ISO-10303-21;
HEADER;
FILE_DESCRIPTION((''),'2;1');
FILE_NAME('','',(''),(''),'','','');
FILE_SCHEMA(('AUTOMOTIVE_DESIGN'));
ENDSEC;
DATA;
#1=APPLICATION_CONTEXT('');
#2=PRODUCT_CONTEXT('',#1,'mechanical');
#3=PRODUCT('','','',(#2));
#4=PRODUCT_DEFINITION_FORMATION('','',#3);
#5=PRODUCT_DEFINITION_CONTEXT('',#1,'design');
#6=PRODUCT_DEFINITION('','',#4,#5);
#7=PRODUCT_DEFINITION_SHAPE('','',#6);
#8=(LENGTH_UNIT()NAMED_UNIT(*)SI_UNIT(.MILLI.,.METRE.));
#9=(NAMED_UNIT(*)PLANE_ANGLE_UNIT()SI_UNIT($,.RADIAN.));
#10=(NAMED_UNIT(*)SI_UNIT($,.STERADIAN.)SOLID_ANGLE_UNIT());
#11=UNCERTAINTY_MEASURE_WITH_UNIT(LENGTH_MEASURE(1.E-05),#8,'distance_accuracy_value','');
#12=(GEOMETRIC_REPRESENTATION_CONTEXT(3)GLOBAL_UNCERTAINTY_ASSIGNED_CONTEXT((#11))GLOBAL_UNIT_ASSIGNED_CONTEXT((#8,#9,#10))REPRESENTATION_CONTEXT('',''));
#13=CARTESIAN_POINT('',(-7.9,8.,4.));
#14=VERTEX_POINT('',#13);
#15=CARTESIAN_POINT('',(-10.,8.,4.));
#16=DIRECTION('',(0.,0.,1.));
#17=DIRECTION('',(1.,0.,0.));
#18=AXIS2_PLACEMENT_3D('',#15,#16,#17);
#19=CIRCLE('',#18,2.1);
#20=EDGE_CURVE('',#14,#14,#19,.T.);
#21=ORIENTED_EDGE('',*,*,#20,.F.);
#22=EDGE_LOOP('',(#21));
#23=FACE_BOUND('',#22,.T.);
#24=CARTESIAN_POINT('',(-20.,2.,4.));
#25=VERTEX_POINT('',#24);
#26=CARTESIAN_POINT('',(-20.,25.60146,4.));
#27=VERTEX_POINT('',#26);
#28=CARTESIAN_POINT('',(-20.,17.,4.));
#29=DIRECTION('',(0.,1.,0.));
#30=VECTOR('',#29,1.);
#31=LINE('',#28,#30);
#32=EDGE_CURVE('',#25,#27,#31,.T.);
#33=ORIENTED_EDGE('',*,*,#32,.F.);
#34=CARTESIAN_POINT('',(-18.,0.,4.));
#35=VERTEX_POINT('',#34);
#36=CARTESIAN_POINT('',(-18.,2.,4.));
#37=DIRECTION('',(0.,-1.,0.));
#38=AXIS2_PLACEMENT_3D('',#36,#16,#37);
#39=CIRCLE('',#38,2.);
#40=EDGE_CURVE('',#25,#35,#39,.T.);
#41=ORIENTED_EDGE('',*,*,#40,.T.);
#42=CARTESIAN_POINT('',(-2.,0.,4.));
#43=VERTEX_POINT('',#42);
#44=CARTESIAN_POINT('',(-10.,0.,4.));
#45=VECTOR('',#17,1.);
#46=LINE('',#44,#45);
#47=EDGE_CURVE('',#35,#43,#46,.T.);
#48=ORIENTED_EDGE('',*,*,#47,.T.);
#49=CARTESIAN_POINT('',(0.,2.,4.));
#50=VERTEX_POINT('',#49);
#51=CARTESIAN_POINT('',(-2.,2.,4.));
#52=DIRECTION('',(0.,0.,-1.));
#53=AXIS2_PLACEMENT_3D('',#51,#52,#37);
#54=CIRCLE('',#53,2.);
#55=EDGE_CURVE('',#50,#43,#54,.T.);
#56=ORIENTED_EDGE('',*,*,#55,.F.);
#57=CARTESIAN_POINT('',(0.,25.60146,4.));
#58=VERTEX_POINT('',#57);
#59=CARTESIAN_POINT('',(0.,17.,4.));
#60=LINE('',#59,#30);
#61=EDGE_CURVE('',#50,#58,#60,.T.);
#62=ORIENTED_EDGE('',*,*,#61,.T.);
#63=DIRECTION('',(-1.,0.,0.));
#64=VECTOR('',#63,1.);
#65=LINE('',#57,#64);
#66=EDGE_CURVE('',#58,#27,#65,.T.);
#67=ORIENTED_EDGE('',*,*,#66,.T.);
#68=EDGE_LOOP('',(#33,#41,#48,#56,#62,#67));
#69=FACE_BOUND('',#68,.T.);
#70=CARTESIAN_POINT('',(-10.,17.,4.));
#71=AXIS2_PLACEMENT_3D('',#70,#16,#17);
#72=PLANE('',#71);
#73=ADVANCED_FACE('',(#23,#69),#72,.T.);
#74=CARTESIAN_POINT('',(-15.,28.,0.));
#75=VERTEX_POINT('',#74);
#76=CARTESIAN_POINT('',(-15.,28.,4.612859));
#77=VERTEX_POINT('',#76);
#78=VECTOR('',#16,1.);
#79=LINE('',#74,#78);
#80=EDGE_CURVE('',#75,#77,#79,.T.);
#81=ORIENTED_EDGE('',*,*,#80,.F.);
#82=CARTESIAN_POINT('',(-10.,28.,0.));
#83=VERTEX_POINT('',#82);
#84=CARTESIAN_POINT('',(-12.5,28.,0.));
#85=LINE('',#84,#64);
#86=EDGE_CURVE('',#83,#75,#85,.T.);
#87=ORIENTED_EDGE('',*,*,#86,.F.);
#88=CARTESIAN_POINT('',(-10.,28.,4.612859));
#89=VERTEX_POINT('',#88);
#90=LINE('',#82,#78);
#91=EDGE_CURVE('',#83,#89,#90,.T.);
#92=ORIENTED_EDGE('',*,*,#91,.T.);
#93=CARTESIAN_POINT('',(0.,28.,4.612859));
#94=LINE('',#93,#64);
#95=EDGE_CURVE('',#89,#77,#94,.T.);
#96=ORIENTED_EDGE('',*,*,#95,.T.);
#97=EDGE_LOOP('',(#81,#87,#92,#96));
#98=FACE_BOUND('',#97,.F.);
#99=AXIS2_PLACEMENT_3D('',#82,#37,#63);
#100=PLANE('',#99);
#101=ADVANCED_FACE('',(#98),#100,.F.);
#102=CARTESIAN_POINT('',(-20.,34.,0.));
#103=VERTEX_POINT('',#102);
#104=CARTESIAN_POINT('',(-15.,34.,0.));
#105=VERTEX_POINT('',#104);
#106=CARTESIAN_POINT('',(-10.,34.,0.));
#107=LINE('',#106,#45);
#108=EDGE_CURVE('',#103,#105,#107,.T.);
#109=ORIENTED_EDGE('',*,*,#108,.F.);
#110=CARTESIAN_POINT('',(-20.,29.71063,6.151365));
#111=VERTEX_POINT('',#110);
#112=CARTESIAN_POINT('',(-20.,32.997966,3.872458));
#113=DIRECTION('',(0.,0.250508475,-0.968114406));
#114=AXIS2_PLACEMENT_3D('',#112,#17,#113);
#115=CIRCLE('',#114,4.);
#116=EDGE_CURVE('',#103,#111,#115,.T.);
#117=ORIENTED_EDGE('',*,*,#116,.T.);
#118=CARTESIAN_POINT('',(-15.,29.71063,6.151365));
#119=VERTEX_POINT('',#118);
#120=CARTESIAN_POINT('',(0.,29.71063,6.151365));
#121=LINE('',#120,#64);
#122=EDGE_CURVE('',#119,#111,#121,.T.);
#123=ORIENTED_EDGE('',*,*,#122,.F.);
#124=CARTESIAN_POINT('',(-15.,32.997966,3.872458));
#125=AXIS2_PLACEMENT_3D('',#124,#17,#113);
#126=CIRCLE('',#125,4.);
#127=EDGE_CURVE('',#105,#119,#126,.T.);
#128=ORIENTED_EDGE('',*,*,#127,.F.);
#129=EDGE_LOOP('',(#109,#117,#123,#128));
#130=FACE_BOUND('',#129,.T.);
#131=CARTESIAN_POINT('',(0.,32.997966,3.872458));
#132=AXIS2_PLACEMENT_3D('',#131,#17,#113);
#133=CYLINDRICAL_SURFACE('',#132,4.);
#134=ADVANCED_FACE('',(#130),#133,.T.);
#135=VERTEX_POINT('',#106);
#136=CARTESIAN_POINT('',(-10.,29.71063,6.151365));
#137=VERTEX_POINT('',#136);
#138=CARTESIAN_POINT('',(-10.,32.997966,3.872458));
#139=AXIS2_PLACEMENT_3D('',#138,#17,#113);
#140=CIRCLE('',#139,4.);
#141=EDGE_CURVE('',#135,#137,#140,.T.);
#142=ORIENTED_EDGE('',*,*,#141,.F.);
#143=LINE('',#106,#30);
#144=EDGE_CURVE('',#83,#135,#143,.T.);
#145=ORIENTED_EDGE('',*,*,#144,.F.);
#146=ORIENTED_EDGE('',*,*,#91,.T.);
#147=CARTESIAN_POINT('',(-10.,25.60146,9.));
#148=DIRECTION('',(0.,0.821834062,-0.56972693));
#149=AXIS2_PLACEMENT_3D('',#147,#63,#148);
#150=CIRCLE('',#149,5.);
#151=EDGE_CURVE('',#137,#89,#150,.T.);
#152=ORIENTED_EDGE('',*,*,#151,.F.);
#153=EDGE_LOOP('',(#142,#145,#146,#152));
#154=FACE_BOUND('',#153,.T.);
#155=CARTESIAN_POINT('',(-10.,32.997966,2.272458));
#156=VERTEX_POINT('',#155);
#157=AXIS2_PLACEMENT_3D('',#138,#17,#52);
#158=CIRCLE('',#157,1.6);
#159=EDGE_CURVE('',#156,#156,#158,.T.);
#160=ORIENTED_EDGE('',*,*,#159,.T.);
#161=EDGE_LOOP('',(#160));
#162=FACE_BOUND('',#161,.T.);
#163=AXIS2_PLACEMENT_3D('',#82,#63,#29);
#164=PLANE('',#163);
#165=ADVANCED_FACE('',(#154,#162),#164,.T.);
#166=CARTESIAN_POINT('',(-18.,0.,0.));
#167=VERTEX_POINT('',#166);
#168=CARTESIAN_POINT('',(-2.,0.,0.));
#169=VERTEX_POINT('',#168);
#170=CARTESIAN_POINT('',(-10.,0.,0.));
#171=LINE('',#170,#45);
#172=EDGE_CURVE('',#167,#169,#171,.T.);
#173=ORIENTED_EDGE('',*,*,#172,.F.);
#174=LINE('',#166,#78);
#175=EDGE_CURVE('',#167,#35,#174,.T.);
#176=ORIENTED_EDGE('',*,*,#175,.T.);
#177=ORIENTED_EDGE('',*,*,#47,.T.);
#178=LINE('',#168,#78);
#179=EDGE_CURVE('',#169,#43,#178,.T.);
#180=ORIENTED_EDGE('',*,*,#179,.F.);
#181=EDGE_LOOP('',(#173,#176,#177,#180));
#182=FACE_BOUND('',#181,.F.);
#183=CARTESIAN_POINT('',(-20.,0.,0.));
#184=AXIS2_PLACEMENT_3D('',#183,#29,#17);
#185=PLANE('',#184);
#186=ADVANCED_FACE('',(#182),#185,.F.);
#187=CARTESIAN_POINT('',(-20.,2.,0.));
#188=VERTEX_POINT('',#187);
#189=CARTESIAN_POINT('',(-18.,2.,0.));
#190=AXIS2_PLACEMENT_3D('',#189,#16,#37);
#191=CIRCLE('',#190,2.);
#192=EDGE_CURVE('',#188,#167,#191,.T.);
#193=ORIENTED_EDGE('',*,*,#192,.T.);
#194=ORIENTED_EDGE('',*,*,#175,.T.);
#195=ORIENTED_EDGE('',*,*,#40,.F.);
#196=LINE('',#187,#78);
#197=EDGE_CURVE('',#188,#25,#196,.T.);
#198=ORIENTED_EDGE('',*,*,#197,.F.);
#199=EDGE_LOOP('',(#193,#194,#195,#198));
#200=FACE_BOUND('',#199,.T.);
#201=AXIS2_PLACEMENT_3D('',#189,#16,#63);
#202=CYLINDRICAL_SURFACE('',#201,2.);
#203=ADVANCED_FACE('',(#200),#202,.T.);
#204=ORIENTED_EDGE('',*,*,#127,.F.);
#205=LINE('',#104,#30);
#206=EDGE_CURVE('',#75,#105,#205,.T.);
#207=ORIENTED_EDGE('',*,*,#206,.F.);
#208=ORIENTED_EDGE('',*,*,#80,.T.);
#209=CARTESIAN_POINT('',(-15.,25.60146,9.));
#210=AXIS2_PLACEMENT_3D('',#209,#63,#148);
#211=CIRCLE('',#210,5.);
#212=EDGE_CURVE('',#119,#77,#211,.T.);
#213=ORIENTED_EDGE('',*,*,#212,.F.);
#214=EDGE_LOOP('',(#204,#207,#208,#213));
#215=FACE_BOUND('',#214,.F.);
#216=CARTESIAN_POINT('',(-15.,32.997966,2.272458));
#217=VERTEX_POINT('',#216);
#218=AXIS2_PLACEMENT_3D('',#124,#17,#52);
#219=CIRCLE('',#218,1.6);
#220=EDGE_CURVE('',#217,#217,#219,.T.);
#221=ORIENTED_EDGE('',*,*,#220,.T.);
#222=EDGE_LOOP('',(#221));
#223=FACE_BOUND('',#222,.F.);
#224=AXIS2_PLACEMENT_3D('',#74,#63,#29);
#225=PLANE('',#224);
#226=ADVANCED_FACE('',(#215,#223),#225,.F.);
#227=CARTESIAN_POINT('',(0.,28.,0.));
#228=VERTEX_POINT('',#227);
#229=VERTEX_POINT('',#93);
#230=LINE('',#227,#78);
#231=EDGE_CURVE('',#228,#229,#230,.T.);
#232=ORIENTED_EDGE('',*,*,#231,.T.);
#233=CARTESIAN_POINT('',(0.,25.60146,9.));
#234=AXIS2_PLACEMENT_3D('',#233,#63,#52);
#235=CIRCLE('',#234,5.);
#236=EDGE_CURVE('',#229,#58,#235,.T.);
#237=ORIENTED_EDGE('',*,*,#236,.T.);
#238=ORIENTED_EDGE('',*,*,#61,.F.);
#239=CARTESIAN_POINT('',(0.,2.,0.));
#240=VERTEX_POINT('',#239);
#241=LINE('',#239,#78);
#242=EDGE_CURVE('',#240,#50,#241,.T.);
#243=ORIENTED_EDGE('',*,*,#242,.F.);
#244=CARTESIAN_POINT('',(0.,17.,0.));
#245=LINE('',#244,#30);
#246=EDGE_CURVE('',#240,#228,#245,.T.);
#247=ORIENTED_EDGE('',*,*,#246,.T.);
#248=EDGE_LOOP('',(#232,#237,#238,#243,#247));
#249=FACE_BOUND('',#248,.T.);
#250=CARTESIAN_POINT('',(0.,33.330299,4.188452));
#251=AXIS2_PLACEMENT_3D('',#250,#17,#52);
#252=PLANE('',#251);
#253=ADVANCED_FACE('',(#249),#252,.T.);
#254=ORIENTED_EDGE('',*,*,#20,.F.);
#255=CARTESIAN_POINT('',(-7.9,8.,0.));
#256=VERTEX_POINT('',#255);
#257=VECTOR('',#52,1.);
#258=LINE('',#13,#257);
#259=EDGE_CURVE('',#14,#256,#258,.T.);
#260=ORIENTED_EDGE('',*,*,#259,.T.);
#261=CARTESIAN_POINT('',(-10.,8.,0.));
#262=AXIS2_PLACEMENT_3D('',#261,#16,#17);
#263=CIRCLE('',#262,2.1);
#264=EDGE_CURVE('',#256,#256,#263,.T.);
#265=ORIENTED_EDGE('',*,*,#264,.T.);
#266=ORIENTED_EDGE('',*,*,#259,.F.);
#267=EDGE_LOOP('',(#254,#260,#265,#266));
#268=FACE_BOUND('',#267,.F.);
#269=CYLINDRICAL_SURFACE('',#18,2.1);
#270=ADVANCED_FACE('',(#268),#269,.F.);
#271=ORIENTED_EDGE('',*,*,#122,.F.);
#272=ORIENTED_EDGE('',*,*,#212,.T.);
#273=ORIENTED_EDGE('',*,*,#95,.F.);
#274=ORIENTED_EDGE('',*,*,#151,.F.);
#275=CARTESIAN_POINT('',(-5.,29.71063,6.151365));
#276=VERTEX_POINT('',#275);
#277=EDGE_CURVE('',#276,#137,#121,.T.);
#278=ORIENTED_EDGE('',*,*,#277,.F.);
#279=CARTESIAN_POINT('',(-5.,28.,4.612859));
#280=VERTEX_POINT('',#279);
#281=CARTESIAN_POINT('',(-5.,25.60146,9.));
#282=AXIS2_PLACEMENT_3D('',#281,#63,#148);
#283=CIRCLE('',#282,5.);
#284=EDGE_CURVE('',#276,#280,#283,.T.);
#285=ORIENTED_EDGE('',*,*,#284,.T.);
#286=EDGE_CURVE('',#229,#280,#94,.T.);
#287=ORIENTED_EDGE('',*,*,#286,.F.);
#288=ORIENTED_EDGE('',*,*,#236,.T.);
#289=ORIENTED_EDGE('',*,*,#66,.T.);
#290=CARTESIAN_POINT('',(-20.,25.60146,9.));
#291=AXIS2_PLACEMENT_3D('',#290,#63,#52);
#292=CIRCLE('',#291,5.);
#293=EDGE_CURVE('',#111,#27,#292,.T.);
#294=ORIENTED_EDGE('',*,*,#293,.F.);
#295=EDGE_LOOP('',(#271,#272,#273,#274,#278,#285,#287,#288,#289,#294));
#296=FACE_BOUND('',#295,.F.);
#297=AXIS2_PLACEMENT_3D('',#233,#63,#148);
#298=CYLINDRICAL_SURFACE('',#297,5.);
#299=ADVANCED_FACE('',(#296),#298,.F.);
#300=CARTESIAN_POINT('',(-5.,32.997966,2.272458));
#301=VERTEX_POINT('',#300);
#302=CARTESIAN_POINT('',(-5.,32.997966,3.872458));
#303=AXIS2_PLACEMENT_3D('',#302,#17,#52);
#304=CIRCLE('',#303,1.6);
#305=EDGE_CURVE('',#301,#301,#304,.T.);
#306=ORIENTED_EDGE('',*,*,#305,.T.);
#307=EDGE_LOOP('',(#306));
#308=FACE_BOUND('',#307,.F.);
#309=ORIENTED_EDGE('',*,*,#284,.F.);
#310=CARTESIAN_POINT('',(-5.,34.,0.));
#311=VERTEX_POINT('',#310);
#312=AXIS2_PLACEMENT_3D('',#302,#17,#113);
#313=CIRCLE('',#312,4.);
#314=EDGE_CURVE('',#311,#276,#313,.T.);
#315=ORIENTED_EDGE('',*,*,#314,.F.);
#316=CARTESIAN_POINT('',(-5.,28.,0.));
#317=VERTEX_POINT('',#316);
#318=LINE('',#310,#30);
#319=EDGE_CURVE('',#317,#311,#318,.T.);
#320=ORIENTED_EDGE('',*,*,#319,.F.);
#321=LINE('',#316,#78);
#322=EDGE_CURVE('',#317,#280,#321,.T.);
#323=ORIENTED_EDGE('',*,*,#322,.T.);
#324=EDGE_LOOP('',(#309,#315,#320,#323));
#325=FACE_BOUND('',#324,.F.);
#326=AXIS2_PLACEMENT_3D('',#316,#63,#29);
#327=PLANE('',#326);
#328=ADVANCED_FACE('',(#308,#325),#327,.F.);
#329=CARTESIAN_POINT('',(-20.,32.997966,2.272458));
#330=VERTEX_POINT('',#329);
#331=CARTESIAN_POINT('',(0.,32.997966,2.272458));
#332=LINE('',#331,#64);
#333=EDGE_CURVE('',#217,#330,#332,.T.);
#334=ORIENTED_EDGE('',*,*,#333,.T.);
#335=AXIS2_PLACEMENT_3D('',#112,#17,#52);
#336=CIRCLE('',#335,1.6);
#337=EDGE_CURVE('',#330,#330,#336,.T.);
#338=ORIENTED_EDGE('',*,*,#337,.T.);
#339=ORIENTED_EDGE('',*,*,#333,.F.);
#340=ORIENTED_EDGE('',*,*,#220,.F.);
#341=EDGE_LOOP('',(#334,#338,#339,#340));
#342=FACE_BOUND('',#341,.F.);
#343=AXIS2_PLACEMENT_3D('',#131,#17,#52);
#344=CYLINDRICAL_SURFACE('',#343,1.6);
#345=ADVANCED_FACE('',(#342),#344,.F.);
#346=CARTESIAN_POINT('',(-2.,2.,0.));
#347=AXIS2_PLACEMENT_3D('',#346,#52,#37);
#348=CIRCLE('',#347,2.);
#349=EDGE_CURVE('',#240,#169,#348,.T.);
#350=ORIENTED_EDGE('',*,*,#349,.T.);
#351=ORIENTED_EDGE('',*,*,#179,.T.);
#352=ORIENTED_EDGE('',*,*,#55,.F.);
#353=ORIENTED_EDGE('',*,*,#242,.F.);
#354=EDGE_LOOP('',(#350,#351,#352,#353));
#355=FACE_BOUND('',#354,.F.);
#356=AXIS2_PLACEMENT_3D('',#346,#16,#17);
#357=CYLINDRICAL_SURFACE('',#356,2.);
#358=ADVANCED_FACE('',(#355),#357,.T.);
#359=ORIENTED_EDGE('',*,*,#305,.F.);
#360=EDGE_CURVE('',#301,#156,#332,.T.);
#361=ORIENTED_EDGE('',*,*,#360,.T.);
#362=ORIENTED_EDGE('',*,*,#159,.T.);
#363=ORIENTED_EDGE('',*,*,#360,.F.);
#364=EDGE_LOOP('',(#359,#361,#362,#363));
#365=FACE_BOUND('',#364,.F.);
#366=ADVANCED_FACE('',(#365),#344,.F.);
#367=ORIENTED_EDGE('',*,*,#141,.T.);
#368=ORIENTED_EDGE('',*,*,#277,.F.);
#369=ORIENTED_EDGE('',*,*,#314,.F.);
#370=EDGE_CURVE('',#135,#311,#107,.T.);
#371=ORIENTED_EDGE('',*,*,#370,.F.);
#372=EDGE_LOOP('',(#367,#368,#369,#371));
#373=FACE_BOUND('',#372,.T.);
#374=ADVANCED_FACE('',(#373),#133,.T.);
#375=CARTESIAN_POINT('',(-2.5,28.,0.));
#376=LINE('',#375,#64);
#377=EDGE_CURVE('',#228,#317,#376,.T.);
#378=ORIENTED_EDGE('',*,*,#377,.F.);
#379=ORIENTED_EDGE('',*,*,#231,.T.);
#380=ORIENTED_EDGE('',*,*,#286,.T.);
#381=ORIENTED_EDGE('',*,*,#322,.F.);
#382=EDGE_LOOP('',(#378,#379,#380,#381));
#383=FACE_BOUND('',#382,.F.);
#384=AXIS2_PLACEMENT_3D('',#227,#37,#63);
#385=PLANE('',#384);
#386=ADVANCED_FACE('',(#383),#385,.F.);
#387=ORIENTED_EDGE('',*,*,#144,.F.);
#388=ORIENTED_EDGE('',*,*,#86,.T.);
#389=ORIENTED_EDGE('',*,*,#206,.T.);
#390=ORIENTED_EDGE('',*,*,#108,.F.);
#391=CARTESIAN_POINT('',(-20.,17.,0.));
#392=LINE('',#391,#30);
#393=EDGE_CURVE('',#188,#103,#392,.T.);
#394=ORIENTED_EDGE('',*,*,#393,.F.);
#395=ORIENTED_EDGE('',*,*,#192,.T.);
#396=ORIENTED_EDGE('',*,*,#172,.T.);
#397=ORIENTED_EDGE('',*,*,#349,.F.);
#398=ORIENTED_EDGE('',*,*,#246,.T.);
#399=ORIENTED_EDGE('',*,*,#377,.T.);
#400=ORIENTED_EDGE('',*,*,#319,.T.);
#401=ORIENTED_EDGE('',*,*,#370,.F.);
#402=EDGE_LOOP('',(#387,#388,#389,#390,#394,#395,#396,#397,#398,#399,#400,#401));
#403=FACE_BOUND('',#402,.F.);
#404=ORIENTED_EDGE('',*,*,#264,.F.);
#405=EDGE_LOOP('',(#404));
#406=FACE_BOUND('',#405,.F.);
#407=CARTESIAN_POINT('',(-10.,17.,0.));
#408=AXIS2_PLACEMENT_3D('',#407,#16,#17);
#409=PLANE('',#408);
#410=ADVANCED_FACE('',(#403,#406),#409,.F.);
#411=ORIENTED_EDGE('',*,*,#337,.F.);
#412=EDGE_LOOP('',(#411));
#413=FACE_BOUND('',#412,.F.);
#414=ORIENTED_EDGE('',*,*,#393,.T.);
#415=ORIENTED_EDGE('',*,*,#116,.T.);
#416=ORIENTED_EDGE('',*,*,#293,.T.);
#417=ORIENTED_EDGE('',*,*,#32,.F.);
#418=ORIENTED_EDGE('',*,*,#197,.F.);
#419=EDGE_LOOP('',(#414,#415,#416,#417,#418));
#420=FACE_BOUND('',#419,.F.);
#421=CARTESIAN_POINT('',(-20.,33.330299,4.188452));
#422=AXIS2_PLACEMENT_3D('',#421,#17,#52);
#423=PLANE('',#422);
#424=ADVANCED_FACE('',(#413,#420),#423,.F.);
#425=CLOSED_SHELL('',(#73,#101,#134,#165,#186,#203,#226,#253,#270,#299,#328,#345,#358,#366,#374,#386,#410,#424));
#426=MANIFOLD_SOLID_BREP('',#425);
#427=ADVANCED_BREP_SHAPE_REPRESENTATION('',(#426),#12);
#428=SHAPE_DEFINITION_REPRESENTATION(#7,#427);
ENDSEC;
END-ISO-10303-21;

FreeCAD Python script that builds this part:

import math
import FreeCAD as App
import Part
import Sketcher

V = App.Vector
Q = App.Units.Quantity


def edges_at(feature, points):
    """Names of the edges that pass closest to the given points."""
    edges = feature.Shape.Edges
    near = lambda p: min(range(len(edges)), key=lambda i: edges[i].distToShape(Part.Vertex(*p))[0])
    return sorted({f"Edge{near(p) + 1}" for p in points})

doc = App.newDocument("Part")
body = doc.addObject("PartDesign::Body", "Body")

# Sketch on XY plane
sketch1 = body.newObject("Sketcher::SketchObject", "Sketch")
sketch1.AttachmentSupport = (doc.getObject("XY_Plane"), [""])
sketch1.MapMode = "FlatFace"
sketch1.addGeometry([
    Part.LineSegment(V(-20, 34, 0), V(-20, 0, 0)),
    Part.LineSegment(V(-20, 0, 0), V(0, 0, 0)),
    Part.LineSegment(V(0, 0, 0), V(0, 34, 0)),
    Part.LineSegment(V(0, 34, 0), V(-20, 34, 0)),
], False)
sketch1.addConstraint([
    Sketcher.Constraint("Coincident", 0, 2, 1, 1),
    Sketcher.Constraint("Coincident", 1, 2, 2, 1),
    Sketcher.Constraint("Coincident", 2, 2, 3, 1),
    Sketcher.Constraint("Coincident", 3, 2, 0, 1),
    Sketcher.Constraint("Vertical", 0),
    Sketcher.Constraint("Horizontal", 1),
    Sketcher.Constraint("Vertical", 2),
    Sketcher.Constraint("Horizontal", 3),
    Sketcher.Constraint("Coincident", 1, 2, -1, 1),
    Sketcher.Constraint("DistanceX", 1, 1, 1, 2, Q("20 mm")),
    Sketcher.Constraint("DistanceY", 0, 2, 0, 1, Q("34 mm")),
])
pad1 = body.newObject("PartDesign::Pad", "Pad")
pad1.Profile = sketch1
pad1.Length = 4

# Sketch on YZ plane
sketch2 = body.newObject("Sketcher::SketchObject", "Sketch001")
sketch2.AttachmentSupport = (doc.getObject("YZ_Plane"), [""])
sketch2.MapMode = "FlatFace"
sketch2.addGeometry([
    Part.LineSegment(V(29, 4, 0), V(34, 4, 0)),
    Part.LineSegment(V(34, 4, 0), V(34, 0, 0)),
    Part.ArcOfCircle(Part.Circle(V(33, 3.9, 0), V(0, 0, 1), 4), math.radians(-75), math.radians(178)),
], False)
sketch2.addConstraint([
    Sketcher.Constraint("Coincident", 0, 2, 1, 1),
    Sketcher.Constraint("Coincident", 1, 2, 2, 1),
    Sketcher.Constraint("Coincident", 2, 2, 0, 1),
    Sketcher.Constraint("Horizontal", 0),
    Sketcher.Constraint("Vertical", 1),
    Sketcher.Constraint("PointOnObject", 1, 2, -1),
    Sketcher.Constraint("Radius", 2, Q("4 mm")),
    Sketcher.Constraint("DistanceX", 0, 1, 0, 2, Q("5 mm")),
    Sketcher.Constraint("DistanceY", 1, 2, 1, 1, Q("4 mm")),
    Sketcher.Constraint("DistanceX", -1, 1, 0, 2, Q("34 mm")),
])
pad2 = body.newObject("PartDesign::Pad", "Pad001")
pad2.Profile = sketch2
pad2.Length = 20
pad2.Reversed = True
doc.recompute()

fillet = body.newObject("PartDesign::Fillet", "Fillet")
fillet.Base = (pad2, edges_at(pad2, [(-10, 29, 4)]))
fillet.Radius = 5

# Sketch on YZ plane
sketch3 = body.newObject("Sketcher::SketchObject", "Sketch002")
sketch3.AttachmentSupport = (doc.getObject("YZ_Plane"), [""])
sketch3.MapMode = "FlatFace"
sketch3.addGeometry(Part.Circle(V(33, 3.9, 0), V(0, 0, 1), 1.6), False)
sketch3.addConstraint([
    Sketcher.Constraint("Diameter", 0, Q("3.2 mm")),
    Sketcher.Constraint("DistanceX", -1, 1, 0, 3, Q("32.997966 mm")),
    Sketcher.Constraint("DistanceY", -1, 1, 0, 3, Q("3.872458 mm")),
])
pocket1 = body.newObject("PartDesign::Pocket", "Pocket")
pocket1.Profile = sketch3
pocket1.Type = "ThroughAll"

# Sketch on XY plane
sketch4 = body.newObject("Sketcher::SketchObject", "Sketch003")
sketch4.AttachmentSupport = (doc.getObject("XY_Plane"), [""])
sketch4.MapMode = "FlatFace"
sketch4.AttachmentOffset = App.Placement(V(0, 0, 4), App.Rotation())
sketch4.addGeometry(Part.Circle(V(-10, 8, 0), V(0, 0, 1), 2.1), False)
sketch4.addConstraint([
    Sketcher.Constraint("Diameter", 0, Q("4.2 mm")),
    Sketcher.Constraint("DistanceX", 0, 3, -1, 1, Q("10 mm")),
    Sketcher.Constraint("DistanceY", -1, 1, 0, 3, Q("8 mm")),
])
pocket2 = body.newObject("PartDesign::Pocket", "Pocket001")
pocket2.Profile = sketch4
pocket2.Type = "ThroughAll"
doc.recompute()

fillet2 = body.newObject("PartDesign::Fillet", "Fillet001")
fillet2.Base = (pocket2, edges_at(pocket2, [(0, 0, 2), (-20, 0, 2)]))
fillet2.Radius = 2

# Sketch on XY plane
sketch5 = body.newObject("Sketcher::SketchObject", "Sketch004")
sketch5.AttachmentSupport = (doc.getObject("XY_Plane"), [""])
sketch5.MapMode = "FlatFace"
sketch5.addGeometry([
    Part.LineSegment(V(0, 40, 0), V(0, 28, 0)),  # 0
    Part.LineSegment(V(0, 28, 0), V(-5, 28, 0)),  # 1
    Part.LineSegment(V(-5, 28, 0), V(-5, 40, 0)),  # 2
    Part.LineSegment(V(-5, 40, 0), V(0, 40, 0)),  # 3
    Part.LineSegment(V(-10, 40, 0), V(-10, 28, 0)),  # 4
    Part.LineSegment(V(-10, 28, 0), V(-15, 28, 0)),  # 5
    Part.LineSegment(V(-15, 28, 0), V(-15, 40, 0)),  # 6
    Part.LineSegment(V(-15, 40, 0), V(-10, 40, 0)),  # 7
], False)
sketch5.addConstraint([
    Sketcher.Constraint("Coincident", 0, 2, 1, 1),
    Sketcher.Constraint("Coincident", 1, 2, 2, 1),
    Sketcher.Constraint("Coincident", 2, 2, 3, 1),
    Sketcher.Constraint("Coincident", 3, 2, 0, 1),
    Sketcher.Constraint("Coincident", 4, 2, 5, 1),
    Sketcher.Constraint("Coincident", 5, 2, 6, 1),
    Sketcher.Constraint("Coincident", 6, 2, 7, 1),
    Sketcher.Constraint("Coincident", 7, 2, 4, 1),
    Sketcher.Constraint("Vertical", 0),
    Sketcher.Constraint("Horizontal", 1),
    Sketcher.Constraint("Vertical", 2),
    Sketcher.Constraint("Horizontal", 3),
    Sketcher.Constraint("Vertical", 4),
    Sketcher.Constraint("Horizontal", 5),
    Sketcher.Constraint("Vertical", 6),
    Sketcher.Constraint("Horizontal", 7),
    Sketcher.Constraint("PointOnObject", 0, 2, -2),
    Sketcher.Constraint("Horizontal", 1, 2, 4, 2),
    Sketcher.Constraint("Horizontal", 3, 2, 6, 2),
    Sketcher.Constraint("Equal", 3, 5),
    Sketcher.Constraint("DistanceX", 1, 2, 1, 1, Q("5 mm")),
    Sketcher.Constraint("DistanceY", 0, 2, 0, 1, Q("12 mm")),
    Sketcher.Constraint("DistanceY", -1, 1, 0, 2, Q("28 mm")),
    Sketcher.Constraint("DistanceX", 4, 2, -1, 1, Q("10 mm")),
])
pocket3 = body.newObject("PartDesign::Pocket", "Pocket002")
pocket3.Profile = sketch5
pocket3.Type = "ThroughAll"
pocket3.Reversed = True

doc.recompute()
